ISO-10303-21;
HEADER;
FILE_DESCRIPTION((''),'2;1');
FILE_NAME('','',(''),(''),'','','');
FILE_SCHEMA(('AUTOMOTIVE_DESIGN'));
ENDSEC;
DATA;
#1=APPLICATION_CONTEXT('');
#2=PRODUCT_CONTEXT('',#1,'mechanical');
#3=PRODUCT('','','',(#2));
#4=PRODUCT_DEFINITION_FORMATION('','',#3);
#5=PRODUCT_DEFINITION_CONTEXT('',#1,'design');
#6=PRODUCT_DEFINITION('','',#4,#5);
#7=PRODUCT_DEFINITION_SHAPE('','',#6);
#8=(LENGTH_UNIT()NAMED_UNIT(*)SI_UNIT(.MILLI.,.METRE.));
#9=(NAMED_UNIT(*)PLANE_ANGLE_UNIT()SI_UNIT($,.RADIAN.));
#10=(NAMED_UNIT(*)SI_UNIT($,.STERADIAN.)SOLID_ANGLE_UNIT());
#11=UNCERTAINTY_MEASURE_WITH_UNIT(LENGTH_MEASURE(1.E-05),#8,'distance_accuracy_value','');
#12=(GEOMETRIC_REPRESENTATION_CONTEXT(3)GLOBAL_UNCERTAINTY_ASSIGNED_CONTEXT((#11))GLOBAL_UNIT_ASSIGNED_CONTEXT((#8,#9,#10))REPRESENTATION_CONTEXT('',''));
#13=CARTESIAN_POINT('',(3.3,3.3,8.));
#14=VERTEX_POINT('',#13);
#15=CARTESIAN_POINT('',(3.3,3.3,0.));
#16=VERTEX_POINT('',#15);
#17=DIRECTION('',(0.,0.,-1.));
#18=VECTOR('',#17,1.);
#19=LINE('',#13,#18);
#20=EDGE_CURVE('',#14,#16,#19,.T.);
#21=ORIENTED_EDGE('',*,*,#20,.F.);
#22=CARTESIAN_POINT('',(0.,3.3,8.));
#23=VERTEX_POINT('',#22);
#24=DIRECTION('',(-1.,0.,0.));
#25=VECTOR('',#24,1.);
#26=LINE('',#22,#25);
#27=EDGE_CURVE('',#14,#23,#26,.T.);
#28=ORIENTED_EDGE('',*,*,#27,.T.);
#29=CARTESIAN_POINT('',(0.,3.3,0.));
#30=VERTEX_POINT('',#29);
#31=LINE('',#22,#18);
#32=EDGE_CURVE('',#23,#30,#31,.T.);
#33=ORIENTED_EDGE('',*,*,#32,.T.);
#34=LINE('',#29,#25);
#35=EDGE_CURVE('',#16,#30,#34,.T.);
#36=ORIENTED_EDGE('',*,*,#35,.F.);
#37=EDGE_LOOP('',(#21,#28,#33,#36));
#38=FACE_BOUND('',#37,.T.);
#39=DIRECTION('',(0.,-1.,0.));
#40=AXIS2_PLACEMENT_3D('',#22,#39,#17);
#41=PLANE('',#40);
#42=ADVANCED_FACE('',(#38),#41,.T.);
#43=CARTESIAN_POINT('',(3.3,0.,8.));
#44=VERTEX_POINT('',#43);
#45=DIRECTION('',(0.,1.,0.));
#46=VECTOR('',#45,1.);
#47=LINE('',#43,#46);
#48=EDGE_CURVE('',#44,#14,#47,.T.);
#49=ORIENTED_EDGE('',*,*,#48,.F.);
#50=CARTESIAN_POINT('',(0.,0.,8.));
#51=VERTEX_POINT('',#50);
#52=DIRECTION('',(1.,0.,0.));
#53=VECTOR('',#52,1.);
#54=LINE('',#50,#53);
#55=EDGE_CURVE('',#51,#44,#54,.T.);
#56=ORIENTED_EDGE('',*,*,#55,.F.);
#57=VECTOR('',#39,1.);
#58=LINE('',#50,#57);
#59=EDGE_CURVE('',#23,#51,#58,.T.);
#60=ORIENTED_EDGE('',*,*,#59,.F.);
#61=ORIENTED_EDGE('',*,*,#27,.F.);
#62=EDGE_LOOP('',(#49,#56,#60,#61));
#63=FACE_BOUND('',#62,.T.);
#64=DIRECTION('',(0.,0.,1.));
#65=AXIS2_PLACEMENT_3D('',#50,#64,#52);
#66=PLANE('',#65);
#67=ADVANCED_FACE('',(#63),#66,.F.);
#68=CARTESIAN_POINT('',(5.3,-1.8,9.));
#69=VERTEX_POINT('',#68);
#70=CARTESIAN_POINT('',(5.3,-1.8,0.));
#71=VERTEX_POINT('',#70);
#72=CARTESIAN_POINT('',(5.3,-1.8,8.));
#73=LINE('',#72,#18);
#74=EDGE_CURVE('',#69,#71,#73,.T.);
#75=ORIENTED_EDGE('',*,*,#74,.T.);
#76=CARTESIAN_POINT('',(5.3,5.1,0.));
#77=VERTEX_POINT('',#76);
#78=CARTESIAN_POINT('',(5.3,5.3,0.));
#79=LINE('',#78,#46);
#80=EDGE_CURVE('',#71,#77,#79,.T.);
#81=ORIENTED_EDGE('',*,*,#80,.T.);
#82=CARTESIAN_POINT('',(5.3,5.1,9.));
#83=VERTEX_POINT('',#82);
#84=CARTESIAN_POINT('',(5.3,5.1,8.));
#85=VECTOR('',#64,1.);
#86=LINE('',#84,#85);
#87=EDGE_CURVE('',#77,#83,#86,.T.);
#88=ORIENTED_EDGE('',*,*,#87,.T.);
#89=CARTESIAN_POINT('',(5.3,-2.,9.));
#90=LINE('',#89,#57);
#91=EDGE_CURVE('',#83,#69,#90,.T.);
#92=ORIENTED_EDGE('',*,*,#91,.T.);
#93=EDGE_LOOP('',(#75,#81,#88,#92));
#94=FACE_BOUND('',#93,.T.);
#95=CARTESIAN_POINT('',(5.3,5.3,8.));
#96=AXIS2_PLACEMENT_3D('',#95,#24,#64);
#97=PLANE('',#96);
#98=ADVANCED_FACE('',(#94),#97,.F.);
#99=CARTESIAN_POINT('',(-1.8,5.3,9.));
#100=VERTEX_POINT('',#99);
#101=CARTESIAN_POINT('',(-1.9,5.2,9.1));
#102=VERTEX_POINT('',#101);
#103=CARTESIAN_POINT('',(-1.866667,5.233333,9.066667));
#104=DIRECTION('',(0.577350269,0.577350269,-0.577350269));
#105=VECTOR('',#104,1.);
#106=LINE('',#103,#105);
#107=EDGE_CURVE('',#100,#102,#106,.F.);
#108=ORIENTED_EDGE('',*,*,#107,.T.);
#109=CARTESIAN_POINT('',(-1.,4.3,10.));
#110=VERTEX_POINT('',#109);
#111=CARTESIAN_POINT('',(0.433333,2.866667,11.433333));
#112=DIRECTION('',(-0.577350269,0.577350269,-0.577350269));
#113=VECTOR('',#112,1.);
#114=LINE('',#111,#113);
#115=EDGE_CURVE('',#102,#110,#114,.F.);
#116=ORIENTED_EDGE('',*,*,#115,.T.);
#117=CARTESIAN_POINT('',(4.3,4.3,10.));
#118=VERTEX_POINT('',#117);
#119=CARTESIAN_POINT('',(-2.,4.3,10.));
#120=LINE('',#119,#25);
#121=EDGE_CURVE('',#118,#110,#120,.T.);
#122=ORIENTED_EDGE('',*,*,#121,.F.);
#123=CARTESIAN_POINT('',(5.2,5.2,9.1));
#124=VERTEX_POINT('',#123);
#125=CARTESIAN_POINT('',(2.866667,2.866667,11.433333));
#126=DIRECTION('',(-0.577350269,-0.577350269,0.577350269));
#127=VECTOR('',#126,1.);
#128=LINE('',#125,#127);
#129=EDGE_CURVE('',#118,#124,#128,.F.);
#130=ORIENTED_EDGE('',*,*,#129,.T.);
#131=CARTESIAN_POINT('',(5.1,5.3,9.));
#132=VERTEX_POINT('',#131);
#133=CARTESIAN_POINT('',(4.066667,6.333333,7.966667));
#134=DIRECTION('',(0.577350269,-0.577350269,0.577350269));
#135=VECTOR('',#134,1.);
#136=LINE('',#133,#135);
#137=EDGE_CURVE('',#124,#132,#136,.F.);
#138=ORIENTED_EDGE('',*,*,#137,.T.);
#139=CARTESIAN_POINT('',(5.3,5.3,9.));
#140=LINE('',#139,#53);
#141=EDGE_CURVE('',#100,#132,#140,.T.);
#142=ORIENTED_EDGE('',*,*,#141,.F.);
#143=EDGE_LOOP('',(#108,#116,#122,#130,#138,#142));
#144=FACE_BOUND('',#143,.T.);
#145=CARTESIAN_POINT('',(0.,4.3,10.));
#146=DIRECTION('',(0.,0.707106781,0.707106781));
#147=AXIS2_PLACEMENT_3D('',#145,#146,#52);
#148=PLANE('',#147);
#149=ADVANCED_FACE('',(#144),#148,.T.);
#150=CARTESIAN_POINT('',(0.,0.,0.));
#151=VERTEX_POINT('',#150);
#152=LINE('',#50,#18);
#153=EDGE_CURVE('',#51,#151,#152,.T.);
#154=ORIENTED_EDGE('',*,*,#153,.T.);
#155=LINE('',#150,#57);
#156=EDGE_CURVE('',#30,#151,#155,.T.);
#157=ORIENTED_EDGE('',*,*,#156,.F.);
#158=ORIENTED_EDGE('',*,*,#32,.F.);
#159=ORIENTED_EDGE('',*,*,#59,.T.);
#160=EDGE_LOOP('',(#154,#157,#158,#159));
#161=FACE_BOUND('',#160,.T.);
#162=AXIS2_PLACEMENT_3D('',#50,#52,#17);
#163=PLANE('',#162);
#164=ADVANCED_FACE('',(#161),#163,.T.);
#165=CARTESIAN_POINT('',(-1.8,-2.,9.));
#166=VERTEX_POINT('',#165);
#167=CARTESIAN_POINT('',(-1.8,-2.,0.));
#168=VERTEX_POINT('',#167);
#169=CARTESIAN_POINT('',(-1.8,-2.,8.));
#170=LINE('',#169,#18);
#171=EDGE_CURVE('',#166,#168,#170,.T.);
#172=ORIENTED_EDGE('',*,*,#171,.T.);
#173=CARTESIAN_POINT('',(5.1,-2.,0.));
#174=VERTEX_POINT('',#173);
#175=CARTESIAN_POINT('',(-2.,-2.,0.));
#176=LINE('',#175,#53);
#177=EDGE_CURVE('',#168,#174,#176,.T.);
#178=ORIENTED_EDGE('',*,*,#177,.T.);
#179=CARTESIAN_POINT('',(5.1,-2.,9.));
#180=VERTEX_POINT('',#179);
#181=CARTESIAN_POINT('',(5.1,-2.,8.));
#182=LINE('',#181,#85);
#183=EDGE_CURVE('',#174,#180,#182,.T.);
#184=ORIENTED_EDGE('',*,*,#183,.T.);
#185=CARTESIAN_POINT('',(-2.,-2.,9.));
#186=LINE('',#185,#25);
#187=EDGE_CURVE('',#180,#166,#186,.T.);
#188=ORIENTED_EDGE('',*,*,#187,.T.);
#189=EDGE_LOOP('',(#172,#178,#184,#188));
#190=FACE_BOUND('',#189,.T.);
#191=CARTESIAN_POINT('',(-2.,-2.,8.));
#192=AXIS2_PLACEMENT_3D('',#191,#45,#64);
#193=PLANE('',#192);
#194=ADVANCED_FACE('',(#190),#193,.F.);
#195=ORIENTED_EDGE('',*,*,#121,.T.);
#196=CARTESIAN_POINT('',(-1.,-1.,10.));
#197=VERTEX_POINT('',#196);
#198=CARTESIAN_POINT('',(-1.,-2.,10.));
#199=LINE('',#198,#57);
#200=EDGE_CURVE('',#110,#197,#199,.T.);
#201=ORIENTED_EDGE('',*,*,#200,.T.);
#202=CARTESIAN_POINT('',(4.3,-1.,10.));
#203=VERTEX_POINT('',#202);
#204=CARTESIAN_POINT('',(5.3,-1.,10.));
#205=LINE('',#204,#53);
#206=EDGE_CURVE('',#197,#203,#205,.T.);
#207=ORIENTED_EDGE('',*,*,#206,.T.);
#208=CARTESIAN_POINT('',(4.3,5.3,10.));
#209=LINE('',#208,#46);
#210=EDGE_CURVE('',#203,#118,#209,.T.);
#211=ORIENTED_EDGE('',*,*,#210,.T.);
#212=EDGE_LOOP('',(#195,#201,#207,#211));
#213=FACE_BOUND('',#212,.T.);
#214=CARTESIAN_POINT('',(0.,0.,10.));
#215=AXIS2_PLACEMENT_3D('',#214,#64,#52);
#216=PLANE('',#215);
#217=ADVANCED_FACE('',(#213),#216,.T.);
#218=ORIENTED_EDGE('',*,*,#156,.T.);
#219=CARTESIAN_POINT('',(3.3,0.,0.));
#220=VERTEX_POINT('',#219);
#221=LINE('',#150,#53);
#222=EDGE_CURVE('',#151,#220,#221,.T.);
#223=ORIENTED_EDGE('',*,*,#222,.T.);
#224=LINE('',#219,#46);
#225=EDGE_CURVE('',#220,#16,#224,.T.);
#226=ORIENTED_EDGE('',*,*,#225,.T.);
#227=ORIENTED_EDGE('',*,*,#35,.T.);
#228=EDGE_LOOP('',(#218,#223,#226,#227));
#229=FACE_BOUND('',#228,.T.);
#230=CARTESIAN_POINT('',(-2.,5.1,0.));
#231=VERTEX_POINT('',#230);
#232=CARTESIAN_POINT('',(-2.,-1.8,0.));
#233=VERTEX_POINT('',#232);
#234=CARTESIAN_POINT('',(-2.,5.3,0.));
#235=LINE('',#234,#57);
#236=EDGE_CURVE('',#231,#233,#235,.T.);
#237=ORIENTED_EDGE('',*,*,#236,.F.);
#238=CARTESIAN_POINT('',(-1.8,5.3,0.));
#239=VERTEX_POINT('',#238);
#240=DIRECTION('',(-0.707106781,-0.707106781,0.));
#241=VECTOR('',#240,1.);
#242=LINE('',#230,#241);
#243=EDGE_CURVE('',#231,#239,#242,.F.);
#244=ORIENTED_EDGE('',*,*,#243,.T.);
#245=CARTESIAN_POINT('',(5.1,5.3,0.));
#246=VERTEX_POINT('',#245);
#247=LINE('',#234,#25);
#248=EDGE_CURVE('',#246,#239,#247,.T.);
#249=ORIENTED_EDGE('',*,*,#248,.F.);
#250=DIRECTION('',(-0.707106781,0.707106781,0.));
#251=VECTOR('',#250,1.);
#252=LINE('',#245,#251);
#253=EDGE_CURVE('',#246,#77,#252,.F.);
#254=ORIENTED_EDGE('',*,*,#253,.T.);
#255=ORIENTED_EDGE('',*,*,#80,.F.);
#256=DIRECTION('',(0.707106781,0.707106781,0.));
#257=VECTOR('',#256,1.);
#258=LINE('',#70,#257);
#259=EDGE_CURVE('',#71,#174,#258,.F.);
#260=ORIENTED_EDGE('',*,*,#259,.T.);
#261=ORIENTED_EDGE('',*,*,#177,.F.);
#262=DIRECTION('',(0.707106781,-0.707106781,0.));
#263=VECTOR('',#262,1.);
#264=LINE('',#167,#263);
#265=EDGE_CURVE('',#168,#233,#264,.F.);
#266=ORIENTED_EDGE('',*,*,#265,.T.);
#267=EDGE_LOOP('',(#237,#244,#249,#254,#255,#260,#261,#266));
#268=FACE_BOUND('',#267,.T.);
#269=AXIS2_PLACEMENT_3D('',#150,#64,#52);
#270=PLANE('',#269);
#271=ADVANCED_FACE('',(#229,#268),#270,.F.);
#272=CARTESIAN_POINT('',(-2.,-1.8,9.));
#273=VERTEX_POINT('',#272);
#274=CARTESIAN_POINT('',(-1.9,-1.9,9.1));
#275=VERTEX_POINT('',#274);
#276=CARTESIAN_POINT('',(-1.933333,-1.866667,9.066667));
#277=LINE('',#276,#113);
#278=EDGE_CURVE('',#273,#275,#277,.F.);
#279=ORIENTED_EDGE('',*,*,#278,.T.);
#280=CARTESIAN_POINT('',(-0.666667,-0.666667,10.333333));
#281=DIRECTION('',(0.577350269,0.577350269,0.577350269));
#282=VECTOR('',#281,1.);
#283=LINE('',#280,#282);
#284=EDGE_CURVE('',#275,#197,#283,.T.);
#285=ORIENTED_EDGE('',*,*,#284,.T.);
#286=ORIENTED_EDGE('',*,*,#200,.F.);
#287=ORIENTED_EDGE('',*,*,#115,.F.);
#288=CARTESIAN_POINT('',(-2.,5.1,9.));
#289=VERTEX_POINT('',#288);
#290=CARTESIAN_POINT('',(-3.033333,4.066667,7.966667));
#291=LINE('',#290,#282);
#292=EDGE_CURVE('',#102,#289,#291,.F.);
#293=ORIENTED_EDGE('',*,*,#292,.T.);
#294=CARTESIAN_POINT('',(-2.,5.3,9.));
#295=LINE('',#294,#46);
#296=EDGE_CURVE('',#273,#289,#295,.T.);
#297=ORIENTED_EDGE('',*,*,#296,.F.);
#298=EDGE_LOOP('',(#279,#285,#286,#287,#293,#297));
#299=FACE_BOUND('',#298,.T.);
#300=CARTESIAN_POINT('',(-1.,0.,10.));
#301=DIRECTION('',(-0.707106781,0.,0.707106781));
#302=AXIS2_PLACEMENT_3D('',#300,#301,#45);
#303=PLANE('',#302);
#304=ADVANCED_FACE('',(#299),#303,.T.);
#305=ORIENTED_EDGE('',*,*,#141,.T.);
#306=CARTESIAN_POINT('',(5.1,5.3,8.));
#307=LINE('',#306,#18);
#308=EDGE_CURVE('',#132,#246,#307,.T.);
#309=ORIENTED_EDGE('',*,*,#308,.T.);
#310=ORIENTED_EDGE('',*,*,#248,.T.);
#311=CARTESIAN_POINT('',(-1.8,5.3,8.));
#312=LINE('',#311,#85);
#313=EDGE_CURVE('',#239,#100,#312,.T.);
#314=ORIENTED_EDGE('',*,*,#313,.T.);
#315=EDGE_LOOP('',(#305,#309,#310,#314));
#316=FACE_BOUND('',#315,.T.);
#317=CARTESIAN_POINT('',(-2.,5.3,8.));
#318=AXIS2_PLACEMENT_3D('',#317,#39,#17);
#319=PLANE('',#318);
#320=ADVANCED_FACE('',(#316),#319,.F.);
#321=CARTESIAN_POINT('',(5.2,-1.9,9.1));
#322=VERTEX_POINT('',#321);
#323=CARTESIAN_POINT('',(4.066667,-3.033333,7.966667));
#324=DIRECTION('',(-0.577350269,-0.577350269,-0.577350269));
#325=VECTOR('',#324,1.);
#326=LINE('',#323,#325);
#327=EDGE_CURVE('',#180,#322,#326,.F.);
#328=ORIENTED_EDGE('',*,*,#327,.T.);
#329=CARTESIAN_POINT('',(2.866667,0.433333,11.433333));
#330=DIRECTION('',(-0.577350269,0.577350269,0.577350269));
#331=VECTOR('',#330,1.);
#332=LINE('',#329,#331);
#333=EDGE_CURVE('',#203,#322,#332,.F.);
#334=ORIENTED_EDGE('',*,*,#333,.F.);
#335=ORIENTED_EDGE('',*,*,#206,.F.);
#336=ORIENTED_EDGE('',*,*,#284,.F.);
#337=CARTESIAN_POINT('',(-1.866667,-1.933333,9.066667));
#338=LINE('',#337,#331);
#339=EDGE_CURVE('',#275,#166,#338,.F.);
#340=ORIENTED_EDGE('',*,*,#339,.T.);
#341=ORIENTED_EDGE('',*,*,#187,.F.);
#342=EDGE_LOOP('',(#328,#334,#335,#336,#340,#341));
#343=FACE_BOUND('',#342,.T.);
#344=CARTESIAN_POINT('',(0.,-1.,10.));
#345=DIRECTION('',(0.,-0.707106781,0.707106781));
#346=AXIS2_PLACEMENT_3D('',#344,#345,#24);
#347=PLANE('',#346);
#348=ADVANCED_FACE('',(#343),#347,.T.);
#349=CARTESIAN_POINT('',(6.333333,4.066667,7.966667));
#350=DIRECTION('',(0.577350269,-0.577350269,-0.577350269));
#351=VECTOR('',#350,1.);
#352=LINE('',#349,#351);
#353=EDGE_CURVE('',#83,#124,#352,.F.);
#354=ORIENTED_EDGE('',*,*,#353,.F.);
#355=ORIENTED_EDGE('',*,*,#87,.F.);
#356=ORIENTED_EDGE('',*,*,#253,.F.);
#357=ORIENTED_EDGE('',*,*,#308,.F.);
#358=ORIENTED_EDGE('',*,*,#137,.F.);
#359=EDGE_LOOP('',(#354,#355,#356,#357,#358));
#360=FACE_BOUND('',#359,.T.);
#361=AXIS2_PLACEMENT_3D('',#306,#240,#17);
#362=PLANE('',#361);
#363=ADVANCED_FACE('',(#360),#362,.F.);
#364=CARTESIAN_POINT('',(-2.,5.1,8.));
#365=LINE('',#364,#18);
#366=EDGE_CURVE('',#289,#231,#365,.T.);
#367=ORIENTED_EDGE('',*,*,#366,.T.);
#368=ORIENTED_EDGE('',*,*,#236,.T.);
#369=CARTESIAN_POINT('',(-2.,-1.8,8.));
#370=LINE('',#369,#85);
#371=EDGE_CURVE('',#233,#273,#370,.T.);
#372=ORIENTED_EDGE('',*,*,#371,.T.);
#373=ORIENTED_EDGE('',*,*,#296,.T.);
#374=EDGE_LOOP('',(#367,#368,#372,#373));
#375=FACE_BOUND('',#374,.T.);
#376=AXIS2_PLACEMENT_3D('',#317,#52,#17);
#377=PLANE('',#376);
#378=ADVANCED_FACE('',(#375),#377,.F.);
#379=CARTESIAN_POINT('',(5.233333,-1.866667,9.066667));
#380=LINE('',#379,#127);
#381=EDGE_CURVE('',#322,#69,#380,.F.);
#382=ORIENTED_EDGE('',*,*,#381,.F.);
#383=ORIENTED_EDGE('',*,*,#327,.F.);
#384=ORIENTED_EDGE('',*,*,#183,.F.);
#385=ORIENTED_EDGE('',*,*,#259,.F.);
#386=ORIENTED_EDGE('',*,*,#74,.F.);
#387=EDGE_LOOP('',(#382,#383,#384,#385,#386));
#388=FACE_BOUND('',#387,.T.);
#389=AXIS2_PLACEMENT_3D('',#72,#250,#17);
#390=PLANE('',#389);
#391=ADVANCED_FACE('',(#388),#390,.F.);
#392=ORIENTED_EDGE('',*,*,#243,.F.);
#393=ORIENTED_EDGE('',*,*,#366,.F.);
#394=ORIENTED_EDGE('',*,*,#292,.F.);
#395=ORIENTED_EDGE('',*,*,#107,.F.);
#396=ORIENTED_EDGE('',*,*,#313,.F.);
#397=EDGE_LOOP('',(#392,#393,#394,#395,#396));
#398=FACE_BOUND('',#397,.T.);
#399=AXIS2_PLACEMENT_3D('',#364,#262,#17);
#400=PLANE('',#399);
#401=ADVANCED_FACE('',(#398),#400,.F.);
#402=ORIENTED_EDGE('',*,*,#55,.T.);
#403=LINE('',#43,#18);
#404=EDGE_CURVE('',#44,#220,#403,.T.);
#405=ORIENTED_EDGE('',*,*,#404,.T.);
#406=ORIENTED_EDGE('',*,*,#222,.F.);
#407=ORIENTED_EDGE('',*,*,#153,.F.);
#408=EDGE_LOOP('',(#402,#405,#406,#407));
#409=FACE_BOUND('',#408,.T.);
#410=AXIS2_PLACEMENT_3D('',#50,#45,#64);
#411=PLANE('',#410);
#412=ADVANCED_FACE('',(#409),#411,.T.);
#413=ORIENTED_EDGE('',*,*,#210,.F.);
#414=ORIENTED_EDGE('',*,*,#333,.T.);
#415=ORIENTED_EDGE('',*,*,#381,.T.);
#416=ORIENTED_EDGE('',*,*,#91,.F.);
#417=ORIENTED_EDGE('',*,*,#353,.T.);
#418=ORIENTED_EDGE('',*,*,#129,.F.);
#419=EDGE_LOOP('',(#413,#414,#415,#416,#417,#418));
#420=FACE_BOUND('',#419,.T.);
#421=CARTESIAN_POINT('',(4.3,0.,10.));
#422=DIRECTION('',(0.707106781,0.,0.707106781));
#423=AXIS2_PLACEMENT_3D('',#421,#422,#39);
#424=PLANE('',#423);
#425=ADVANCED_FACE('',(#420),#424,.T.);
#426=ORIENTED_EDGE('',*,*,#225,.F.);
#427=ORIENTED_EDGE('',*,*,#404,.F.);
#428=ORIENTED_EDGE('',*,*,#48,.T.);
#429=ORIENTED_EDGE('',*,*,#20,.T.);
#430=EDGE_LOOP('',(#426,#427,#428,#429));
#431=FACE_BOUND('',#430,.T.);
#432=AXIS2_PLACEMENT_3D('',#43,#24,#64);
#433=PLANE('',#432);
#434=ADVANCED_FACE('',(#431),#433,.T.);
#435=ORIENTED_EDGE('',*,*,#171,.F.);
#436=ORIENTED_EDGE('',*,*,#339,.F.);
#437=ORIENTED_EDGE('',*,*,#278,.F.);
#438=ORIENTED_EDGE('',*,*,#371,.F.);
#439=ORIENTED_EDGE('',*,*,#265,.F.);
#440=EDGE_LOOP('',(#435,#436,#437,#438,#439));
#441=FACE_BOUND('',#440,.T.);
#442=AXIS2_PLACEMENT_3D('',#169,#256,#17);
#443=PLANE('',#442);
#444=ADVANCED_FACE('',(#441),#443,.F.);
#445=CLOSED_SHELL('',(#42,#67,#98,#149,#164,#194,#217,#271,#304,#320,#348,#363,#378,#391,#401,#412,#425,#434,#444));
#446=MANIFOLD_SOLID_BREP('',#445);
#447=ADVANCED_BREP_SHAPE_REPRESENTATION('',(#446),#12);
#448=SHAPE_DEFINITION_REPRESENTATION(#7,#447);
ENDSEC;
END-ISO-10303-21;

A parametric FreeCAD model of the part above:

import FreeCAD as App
import Part
import Sketcher
from FreeCAD import Vector
Q = App.Units.Quantity


def edges_at(feature, points):
    """Names of the edges that pass closest to the given points."""
    edges = feature.Shape.Edges
    near = lambda p: min(range(len(edges)), key=lambda i: edges[i].distToShape(Part.Vertex(*p))[0])
    return sorted({f"Edge{near(p) + 1}" for p in points})


def add_polygon(sketch, points):
    """Adds a closed chain of lines whose ends are joined by coincident constraints."""
    first, n = sketch.GeometryCount, len(points)
    for a, b in zip(points, points[1:] + points[:1]):
        sketch.addGeometry(Part.LineSegment(App.Vector(*a, 0), App.Vector(*b, 0)), False)
    for i in range(n):
        sketch.addConstraint(Sketcher.Constraint("Coincident", first + i, 2, first + (i + 1) % n, 1))

doc = App.newDocument("Part")
body = doc.addObject("PartDesign::Body", "Body")

# Sketch on XY plane
sketch1 = body.newObject("Sketcher::SketchObject", "Sketch")
sketch1.AttachmentSupport = (doc.getObject("XY_Plane"), [""])
sketch1.MapMode = "FlatFace"
add_polygon(sketch1, [(-2, 5.3), (-2, -2), (5.3, -2), (5.3, 5.3)])  # lines 0-3
add_polygon(sketch1, [(3.3, 0), (0, 0), (0, 3.3), (3.3, 3.3)])  # lines 4-7
sketch1.addConstraint([
    Sketcher.Constraint("Vertical", 0),
    Sketcher.Constraint("Horizontal", 1),
    Sketcher.Constraint("Vertical", 2),
    Sketcher.Constraint("Horizontal", 3),
    Sketcher.Constraint("Horizontal", 4),
    Sketcher.Constraint("Vertical", 5),
    Sketcher.Constraint("Horizontal", 6),
    Sketcher.Constraint("Vertical", 7),
    Sketcher.Constraint("Coincident", 4, 2, -1, 1),
    Sketcher.Constraint("Equal", 3, 0),
    Sketcher.Constraint("Equal", 6, 5),
    Sketcher.Constraint("DistanceX", 1, 1, 1, 2, Q("7.3 mm")),
    Sketcher.Constraint("DistanceX", 4, 2, 4, 1, Q("3.3 mm")),
    Sketcher.Constraint("DistanceX", 0, 2, -1, 1, Q("2 mm")),
    Sketcher.Constraint("DistanceY", 0, 2, -1, 1, Q("2 mm")),
])
pad1 = body.newObject("PartDesign::Pad", "Pad")
pad1.Profile = sketch1
pad1.Length = 8

# Sketch on XY plane
sketch2 = body.newObject("Sketcher::SketchObject", "Sketch001")
sketch2.AttachmentSupport = (doc.getObject("XY_Plane"), [""])
sketch2.MapMode = "FlatFace"
sketch2.AttachmentOffset = App.Placement(Vector(0, 0, 8), App.Rotation())
add_polygon(sketch2, [(-2, 5), (-2, -2), (5, -2), (5, 5)])  # lines 0-3
sketch2.addConstraint([
    Sketcher.Constraint("Vertical", 0),
    Sketcher.Constraint("Horizontal", 1),
    Sketcher.Constraint("Vertical", 2),
    Sketcher.Constraint("Horizontal", 3),
    Sketcher.Constraint("Equal", 3, 0),
    Sketcher.Constraint("DistanceX", 1, 1, 1, 2, Q("7.3 mm")),
    Sketcher.Constraint("DistanceX", 0, 2, -1, 1, Q("2 mm")),
    Sketcher.Constraint("DistanceY", 0, 2, -1, 1, Q("2 mm")),
])
pad2 = body.newObject("PartDesign::Pad", "Pad001")
pad2.Profile = sketch2
pad2.Length = 2
doc.recompute()

chamfer = body.newObject("PartDesign::Chamfer", "Chamfer")
chamfer.Base = (pad2, edges_at(pad2, [
    (-2, 1.65, 10),
    (1.65, -2, 10),
    (5.3, 1.65, 10),
    (1.65, 5.3, 10),
]))
chamfer.Size = 1
doc.recompute()

chamfer2 = body.newObject("PartDesign::Chamfer", "Chamfer001")
chamfer2.Base = (chamfer, edges_at(chamfer, [
    (-2, 5.3, 4.5),
    (5.3, 5.3, 4.5),
    (5.3, -2, 4.5),
    (-2, -2, 4.5),
]))
chamfer2.Size = 0.2

doc.recompute()
